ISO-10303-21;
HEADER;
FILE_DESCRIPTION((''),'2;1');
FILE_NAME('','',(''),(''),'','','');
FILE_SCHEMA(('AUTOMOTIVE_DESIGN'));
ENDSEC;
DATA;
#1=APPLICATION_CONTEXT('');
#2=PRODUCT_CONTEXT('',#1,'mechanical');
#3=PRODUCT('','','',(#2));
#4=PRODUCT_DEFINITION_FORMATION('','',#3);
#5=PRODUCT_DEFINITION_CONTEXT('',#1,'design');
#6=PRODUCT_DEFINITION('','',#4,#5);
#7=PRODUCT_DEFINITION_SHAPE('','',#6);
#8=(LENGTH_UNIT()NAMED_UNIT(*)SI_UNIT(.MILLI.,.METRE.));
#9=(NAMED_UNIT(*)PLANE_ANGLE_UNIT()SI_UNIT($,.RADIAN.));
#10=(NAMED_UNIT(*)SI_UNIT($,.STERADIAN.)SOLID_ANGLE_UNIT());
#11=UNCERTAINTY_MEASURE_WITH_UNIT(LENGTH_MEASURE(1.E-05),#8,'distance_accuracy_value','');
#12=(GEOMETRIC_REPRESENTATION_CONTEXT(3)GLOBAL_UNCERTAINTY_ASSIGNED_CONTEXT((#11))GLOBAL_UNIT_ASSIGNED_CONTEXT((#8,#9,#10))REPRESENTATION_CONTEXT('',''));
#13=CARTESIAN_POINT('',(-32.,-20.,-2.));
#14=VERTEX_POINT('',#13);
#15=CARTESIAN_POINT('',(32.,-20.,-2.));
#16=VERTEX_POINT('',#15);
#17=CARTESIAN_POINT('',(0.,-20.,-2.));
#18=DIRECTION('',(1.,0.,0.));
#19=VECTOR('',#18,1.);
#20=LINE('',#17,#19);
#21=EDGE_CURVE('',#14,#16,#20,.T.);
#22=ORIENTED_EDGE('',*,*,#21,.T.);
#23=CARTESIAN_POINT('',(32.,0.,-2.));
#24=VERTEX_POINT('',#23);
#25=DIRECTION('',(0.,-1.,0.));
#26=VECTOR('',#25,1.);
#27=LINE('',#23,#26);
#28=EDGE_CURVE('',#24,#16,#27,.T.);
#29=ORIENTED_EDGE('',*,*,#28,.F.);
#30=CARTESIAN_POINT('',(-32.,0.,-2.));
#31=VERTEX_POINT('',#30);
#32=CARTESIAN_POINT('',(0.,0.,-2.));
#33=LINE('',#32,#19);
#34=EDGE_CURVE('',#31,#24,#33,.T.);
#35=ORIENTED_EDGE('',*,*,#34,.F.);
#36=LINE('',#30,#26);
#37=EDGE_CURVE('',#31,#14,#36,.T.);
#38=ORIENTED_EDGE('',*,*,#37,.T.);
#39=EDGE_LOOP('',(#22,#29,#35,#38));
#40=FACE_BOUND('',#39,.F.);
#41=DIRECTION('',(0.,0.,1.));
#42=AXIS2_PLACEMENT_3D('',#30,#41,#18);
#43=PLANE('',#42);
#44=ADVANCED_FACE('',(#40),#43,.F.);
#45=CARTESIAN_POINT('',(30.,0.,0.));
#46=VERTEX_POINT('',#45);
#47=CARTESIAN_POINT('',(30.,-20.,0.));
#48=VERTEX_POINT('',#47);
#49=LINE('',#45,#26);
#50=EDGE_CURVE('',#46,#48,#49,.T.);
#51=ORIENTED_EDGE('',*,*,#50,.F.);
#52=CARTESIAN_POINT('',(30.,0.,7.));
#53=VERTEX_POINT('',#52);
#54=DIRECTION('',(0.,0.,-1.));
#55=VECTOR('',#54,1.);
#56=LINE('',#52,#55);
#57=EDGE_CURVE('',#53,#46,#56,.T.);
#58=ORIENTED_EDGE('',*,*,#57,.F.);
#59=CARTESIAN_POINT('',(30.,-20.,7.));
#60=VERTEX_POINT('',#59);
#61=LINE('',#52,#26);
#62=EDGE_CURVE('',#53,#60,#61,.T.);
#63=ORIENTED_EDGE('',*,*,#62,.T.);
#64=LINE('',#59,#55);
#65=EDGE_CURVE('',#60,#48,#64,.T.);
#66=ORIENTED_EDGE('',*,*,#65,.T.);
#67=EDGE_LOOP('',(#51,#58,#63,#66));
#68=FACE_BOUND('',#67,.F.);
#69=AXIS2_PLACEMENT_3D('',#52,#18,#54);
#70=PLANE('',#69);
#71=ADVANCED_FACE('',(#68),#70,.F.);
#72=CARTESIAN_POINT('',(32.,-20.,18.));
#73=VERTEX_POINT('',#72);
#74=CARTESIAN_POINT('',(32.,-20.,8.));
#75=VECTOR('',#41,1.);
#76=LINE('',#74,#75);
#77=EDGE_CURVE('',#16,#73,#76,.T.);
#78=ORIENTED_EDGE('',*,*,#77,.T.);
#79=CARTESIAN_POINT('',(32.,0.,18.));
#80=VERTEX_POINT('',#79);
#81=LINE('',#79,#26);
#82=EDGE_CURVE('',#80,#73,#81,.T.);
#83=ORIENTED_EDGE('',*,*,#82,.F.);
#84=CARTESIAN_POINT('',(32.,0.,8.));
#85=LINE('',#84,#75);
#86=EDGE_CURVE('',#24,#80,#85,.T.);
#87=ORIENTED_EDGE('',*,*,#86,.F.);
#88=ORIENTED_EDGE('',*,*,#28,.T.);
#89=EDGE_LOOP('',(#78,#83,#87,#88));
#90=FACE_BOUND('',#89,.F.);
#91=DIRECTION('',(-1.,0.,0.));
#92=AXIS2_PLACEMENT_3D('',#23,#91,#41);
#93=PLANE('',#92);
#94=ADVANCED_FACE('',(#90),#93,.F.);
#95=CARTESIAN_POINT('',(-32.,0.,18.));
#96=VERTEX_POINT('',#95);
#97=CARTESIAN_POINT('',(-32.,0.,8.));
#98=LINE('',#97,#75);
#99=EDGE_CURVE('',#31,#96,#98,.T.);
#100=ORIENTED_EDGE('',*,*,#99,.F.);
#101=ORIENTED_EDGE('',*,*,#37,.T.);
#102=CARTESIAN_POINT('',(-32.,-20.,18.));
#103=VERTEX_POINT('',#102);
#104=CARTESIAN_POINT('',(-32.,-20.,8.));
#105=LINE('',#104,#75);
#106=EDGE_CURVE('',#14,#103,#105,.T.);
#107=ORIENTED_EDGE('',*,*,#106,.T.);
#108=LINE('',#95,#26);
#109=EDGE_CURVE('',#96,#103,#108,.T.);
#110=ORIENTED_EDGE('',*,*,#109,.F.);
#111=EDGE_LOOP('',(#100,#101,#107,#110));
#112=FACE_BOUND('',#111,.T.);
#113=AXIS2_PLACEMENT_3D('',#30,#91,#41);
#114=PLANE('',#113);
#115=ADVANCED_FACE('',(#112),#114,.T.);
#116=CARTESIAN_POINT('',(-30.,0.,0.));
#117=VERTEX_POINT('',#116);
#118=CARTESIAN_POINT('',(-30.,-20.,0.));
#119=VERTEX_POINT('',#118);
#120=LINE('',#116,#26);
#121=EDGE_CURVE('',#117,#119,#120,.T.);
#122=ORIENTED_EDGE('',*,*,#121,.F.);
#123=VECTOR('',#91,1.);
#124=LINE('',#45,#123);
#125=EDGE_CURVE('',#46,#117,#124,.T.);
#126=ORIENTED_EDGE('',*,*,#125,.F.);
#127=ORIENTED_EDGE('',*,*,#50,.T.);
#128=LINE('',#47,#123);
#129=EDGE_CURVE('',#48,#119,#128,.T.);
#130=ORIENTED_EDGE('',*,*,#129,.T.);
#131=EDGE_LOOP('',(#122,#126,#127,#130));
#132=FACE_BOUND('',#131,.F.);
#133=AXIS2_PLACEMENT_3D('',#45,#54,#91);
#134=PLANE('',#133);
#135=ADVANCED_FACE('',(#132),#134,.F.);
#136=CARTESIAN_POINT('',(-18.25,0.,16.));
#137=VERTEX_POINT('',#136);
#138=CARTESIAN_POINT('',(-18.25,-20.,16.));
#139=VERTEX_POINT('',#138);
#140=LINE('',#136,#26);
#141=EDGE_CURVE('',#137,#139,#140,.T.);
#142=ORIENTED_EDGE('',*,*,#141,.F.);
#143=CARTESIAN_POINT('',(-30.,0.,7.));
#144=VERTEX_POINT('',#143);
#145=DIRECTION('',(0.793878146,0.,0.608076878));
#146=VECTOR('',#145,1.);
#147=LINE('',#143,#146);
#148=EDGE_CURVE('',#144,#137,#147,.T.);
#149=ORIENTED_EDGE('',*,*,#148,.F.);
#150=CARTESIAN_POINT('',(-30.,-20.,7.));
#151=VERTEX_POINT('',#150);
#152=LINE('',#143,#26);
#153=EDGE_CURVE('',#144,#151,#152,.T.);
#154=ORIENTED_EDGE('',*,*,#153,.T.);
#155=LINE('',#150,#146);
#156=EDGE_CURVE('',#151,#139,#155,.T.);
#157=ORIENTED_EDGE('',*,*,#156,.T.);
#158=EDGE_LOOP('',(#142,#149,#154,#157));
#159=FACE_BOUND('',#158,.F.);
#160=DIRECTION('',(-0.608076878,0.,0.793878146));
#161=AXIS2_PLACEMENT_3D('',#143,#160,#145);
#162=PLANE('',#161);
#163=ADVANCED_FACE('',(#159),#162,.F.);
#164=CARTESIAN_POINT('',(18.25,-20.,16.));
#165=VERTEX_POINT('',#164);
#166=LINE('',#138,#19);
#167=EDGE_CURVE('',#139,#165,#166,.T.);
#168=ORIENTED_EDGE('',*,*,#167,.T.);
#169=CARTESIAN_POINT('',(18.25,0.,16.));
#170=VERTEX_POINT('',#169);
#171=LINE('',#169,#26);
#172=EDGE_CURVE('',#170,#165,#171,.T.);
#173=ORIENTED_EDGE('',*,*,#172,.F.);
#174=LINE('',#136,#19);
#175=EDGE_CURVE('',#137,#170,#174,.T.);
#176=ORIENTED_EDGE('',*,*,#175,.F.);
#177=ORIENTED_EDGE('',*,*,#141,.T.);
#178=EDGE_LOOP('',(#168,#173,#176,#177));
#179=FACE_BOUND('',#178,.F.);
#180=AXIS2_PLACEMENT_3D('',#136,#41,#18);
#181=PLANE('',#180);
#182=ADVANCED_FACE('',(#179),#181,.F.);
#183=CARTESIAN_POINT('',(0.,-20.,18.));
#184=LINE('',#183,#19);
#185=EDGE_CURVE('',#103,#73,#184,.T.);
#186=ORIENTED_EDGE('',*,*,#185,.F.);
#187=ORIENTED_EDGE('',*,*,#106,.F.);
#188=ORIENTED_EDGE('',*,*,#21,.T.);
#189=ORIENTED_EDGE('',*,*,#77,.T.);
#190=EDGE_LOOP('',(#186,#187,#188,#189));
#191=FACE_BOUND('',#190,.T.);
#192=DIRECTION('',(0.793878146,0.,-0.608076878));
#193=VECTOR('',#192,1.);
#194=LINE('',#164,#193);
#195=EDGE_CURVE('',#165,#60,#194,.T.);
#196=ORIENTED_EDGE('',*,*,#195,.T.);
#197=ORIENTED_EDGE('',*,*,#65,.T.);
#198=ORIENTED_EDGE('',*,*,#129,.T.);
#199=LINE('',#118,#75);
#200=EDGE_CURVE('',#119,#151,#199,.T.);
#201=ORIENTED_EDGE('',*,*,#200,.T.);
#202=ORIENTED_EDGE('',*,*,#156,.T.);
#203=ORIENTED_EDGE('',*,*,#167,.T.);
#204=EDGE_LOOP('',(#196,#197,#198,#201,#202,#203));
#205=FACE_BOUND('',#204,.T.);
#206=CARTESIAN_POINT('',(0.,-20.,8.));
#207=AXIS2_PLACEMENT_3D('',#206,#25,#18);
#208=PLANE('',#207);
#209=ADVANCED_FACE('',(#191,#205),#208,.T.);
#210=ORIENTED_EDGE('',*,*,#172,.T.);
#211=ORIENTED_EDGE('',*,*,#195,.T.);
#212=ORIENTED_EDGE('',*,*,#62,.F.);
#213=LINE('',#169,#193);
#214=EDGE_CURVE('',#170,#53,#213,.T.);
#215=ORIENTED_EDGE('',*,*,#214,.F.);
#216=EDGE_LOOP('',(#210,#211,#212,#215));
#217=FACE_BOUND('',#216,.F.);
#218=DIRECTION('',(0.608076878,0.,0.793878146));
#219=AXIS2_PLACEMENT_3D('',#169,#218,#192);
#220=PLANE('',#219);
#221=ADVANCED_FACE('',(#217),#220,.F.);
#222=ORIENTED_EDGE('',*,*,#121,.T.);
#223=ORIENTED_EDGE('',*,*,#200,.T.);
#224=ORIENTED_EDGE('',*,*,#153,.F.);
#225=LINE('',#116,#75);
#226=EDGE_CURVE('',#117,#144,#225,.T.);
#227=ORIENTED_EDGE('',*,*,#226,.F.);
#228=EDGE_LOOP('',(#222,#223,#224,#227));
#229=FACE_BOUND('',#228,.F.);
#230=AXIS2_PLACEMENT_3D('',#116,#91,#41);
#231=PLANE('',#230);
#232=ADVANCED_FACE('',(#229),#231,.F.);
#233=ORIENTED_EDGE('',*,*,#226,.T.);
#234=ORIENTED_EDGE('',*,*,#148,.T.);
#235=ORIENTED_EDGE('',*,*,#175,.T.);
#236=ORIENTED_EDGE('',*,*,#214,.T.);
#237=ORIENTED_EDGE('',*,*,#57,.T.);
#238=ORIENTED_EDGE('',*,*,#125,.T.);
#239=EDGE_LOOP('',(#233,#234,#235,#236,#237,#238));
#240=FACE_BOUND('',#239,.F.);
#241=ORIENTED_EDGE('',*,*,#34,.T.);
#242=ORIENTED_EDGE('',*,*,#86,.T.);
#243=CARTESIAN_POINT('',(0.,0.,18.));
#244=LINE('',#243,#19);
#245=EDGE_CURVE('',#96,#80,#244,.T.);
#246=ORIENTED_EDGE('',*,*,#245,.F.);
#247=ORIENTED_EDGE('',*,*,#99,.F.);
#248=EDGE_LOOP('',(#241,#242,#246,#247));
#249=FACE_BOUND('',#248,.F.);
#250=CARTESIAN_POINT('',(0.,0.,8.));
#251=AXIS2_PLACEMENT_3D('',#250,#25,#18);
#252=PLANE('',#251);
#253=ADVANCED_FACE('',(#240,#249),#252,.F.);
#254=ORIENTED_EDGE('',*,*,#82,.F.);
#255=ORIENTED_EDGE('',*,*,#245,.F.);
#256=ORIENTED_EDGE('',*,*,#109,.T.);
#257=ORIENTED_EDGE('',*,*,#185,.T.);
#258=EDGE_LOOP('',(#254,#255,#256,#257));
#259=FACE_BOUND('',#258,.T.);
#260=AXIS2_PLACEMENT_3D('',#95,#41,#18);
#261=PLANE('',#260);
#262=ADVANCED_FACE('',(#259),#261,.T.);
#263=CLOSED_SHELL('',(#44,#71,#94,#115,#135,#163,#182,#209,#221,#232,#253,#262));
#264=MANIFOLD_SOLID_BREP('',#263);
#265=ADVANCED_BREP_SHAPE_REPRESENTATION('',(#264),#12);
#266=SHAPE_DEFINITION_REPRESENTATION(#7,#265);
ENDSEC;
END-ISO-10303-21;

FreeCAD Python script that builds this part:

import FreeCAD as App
import Part
import Sketcher

V = App.Vector
Q = App.Units.Quantity


def add_polygon(sketch, points):
    """Adds a closed chain of lines whose ends are joined by coincident constraints."""
    first, n = sketch.GeometryCount, len(points)
    for a, b in zip(points, points[1:] + points[:1]):
        sketch.addGeometry(Part.LineSegment(App.Vector(*a, 0), App.Vector(*b, 0)), False)
    for i in range(n):
        sketch.addConstraint(Sketcher.Constraint("Coincident", first + i, 2, first + (i + 1) % n, 1))

doc = App.newDocument("Part")
params = doc.addObject("Spreadsheet::Sheet", "Params")
for row, (alias, value) in enumerate([
    ("sketch1_width", "64 mm"),
    ("sketch1_width2", "60 mm"),
    ("sketch1_height", "20 mm"),
    ("sketch1_height2", "7 mm"),
    ("sketch1_width3", "36.5 mm"),
    ("pad1_length", "20 mm"),
], start=1):
    params.set(f"A{row}", alias)
    params.set(f"B{row}", "=" + value)
    params.setAlias(f"B{row}", alias)

body = doc.addObject("PartDesign::Body", "Body")

# Sketch on XZ plane
sketch1 = body.newObject("Sketcher::SketchObject", "Sketch")
sketch1.AttachmentSupport = (doc.getObject("XZ_Plane"), [""])
sketch1.MapMode = "FlatFace"
add_polygon(sketch1, [(-32, 18), (-32, -2), (32, -2), (32, 18)])  # lines 0-3
add_polygon(sketch1, [(-30, 7), (-18, 16), (18, 16), (30, 7), (30, 0), (-30, 0)])  # lines 4-9
sketch1.addConstraint(Sketcher.Constraint("Vertical", 0))
sketch1.addConstraint(Sketcher.Constraint("Horizontal", 1))
sketch1.addConstraint(Sketcher.Constraint("Vertical", 2))
sketch1.addConstraint(Sketcher.Constraint("Horizontal", 3))
sketch1.addConstraint(Sketcher.Constraint("Horizontal", 5))
sketch1.addConstraint(Sketcher.Constraint("Vertical", 7))
sketch1.addConstraint(Sketcher.Constraint("Horizontal", 8))
sketch1.addConstraint(Sketcher.Constraint("Vertical", 9))
sketch1.addConstraint(Sketcher.Constraint("Symmetric", 7, 2, 8, 2, -1, 1))
sketch1.addConstraint(Sketcher.Constraint("Horizontal", 6, 2, 9, 2))
sketch1.addConstraint(Sketcher.Constraint("Equal", 4, 6))
sketch1.addConstraint(Sketcher.Constraint("DistanceX", 1, 1, 1, 2, Q("64 mm")))
sketch1.addConstraint(Sketcher.Constraint("DistanceX", 8, 2, 8, 1, Q("60 mm")))
sketch1.addConstraint(Sketcher.Constraint("DistanceY", 0, 2, 0, 1, Q("20 mm")))
sketch1.addConstraint(Sketcher.Constraint("DistanceY", 7, 2, 7, 1, Q("7 mm")))
sketch1.addConstraint(Sketcher.Constraint("DistanceX", 5, 1, 5, 2, Q("36.5 mm")))
sketch1.addConstraint(Sketcher.Constraint("DistanceX", 0, 2, -1, 1, Q("32 mm")))
sketch1.addConstraint(Sketcher.Constraint("DistanceY", 0, 2, -1, 1, Q("2 mm")))
sketch1.addConstraint(Sketcher.Constraint("DistanceY", -1, 1, 4, 2, Q("16 mm")))
sketch1.setExpression("Constraints[21]", "Params.sketch1_width")
sketch1.setExpression("Constraints[22]", "Params.sketch1_width2")
sketch1.setExpression("Constraints[23]", "Params.sketch1_height")
sketch1.setExpression("Constraints[24]", "Params.sketch1_height2")
sketch1.setExpression("Constraints[25]", "Params.sketch1_width3")
pad1 = body.newObject("PartDesign::Pad", "Pad")
pad1.Profile = sketch1
pad1.setExpression("Length", "Params.pad1_length")

doc.recompute()
